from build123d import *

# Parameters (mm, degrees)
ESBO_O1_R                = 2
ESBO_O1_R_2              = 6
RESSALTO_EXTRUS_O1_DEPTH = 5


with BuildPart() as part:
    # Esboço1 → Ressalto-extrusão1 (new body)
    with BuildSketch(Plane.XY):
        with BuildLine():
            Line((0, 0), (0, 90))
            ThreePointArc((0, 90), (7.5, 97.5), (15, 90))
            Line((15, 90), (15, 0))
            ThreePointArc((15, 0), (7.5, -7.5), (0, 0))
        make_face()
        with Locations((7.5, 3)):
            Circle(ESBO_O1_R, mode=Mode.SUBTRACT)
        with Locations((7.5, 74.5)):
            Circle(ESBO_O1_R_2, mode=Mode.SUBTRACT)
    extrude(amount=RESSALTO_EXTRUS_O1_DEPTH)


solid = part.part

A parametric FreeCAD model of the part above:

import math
import FreeCAD as App
import Part
import Sketcher
Q = App.Units.Quantity

doc = App.newDocument("Part")
params = doc.addObject("Spreadsheet::Sheet", "Params")
for row, (alias, value) in enumerate([
    ("sketch1_diameter", "4 mm"),
    ("sketch1_diameter2", "12 mm"),
    ("sketch1_radius", "7.5 mm"),
    ("sketch1_height", "90 mm"),
    ("pad1_length", "5 mm"),
], start=1):
    params.set(f"A{row}", alias)
    params.set(f"B{row}", "=" + value)
    params.setAlias(f"B{row}", alias)

body = doc.addObject("PartDesign::Body", "Body")

# Sketch on XY plane
sketch1 = body.newObject("Sketcher::SketchObject", "Sketch")
sketch1.AttachmentSupport = (doc.getObject("XY_Plane"), [""])
sketch1.MapMode = "FlatFace"
sketch1.addGeometry(Part.LineSegment(App.Vector(0, 90, 0), App.Vector(0, 0, 0)), False)
sketch1.addGeometry(Part.ArcOfCircle(Part.Circle(App.Vector(7.5, 0, 0), App.Vector(0, 0, 1), 7.5), math.radians(180), math.radians(360)), False)
sketch1.addGeometry(Part.LineSegment(App.Vector(15, 0, 0), App.Vector(15, 90, 0)), False)
sketch1.addGeometry(Part.ArcOfCircle(Part.Circle(App.Vector(7.5, 90, 0), App.Vector(0, 0, 1), 7.5), math.radians(0), math.radians(180)), False)
sketch1.addGeometry(Part.Circle(App.Vector(7.5, 3, 0), App.Vector(0, 0, 1), 2), False)
sketch1.addGeometry(Part.Circle(App.Vector(7.5, 74.5, 0), App.Vector(0, 0, 1), 6), False)
sketch1.addConstraint(Sketcher.Constraint("Tangent", 0, 2, 1, 1))
sketch1.addConstraint(Sketcher.Constraint("Tangent", 1, 2, 2, 1))
sketch1.addConstraint(Sketcher.Constraint("Tangent", 2, 2, 3, 1))
sketch1.addConstraint(Sketcher.Constraint("Tangent", 3, 2, 0, 1))
sketch1.addConstraint(Sketcher.Constraint("Vertical", 0))
sketch1.addConstraint(Sketcher.Constraint("Vertical", 2))
sketch1.addConstraint(Sketcher.Constraint("Coincident", 0, 2, -1, 1))
sketch1.addConstraint(Sketcher.Constraint("Vertical", 3, 3, 4, 3))
sketch1.addConstraint(Sketcher.Constraint("Vertical", 4, 3, 5, 3))
sketch1.addConstraint(Sketcher.Constraint("Diameter", 4, Q("4 mm")))
sketch1.addConstraint(Sketcher.Constraint("Diameter", 5, Q("12 mm")))
sketch1.addConstraint(Sketcher.Constraint("Radius", 1, Q("7.5 mm")))
sketch1.addConstraint(Sketcher.Constraint("DistanceY", 0, 2, 0, 1, Q("90 mm")))
sketch1.addConstraint(Sketcher.Constraint("DistanceY", -1, 1, 4, 3, Q("3 mm")))
sketch1.addConstraint(Sketcher.Constraint("DistanceY", -1, 1, 5, 3, Q("74.5 mm")))
sketch1.setExpression("Constraints[9]", "Params.sketch1_diameter")
sketch1.setExpression("Constraints[10]", "Params.sketch1_diameter2")
sketch1.setExpression("Constraints[11]", "Params.sketch1_radius")
sketch1.setExpression("Constraints[12]", "Params.sketch1_height")
pad1 = body.newObject("PartDesign::Pad", "Pad")
pad1.Profile = sketch1
pad1.setExpression("Length", "Params.pad1_length")

doc.recompute()
